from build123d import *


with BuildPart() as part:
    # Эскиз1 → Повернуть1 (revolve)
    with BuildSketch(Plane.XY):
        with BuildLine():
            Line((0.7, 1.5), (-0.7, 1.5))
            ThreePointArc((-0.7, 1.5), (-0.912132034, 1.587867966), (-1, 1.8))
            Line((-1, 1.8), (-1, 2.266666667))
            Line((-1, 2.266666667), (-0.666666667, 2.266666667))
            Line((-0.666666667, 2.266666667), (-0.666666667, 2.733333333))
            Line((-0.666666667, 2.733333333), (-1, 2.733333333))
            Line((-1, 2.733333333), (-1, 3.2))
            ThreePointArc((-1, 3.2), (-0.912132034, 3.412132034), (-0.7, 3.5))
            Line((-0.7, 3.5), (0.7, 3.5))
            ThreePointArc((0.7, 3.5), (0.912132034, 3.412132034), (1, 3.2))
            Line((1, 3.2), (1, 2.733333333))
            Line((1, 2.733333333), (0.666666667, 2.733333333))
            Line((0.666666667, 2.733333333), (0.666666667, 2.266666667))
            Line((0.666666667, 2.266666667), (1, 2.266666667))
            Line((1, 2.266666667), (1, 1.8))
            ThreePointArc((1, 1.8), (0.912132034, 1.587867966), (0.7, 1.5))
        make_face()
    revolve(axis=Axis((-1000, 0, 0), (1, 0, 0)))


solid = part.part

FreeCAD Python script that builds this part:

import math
import FreeCAD as App
import Part
import Sketcher
from FreeCAD import Vector

doc = App.newDocument("Part")
params = doc.addObject("Spreadsheet::Sheet", "Params")
for row, (alias, value) in enumerate([
    ("sketch1_radius", "0.3 mm"),
    ("sketch1_width", "1.4 mm"),
    ("revolution_angle", "360 deg"),
], start=1):
    params.set(f"A{row}", alias)
    params.set(f"B{row}", "=" + value)
    params.setAlias(f"B{row}", alias)

body = doc.addObject("PartDesign::Body", "Body")

sketch1 = body.newObject("Sketcher::SketchObject", "Sketch")
sketch1.AttachmentSupport = (doc.getObject("XY_Plane"), [""])
sketch1.MapMode = "FlatFace"
sketch1.addGeometry([
    Part.LineSegment(Vector(-0.7, 1.5, 0), Vector(0.7, 1.5, 0)),
    Part.ArcOfCircle(Part.Circle(Vector(0.7, 1.8, 0), Vector(0, 0, 1), 0.3), math.radians(-90), math.radians(0)),
    Part.LineSegment(Vector(1, 1.8, 0), Vector(1, 2.266667, 0)),
    Part.LineSegment(Vector(1, 2.266667, 0), Vector(0.666667, 2.266667, 0)),
    Part.LineSegment(Vector(0.666667, 2.266667, 0), Vector(0.666667, 2.733333, 0)),
    Part.LineSegment(Vector(0.666667, 2.733333, 0), Vector(1, 2.733333, 0)),
    Part.LineSegment(Vector(1, 2.733333, 0), Vector(1, 3.2, 0)),
    Part.ArcOfCircle(Part.Circle(Vector(0.7, 3.2, 0), Vector(0, 0, 1), 0.3), math.radians(0), math.radians(90)),
    Part.LineSegment(Vector(0.7, 3.5, 0), Vector(-0.7, 3.5, 0)),
    Part.ArcOfCircle(Part.Circle(Vector(-0.7, 3.2, 0), Vector(0, 0, 1), 0.3), math.radians(90), math.radians(180)),
    Part.LineSegment(Vector(-1, 3.2, 0), Vector(-1, 2.733333, 0)),
    Part.LineSegment(Vector(-1, 2.733333, 0), Vector(-0.666667, 2.733333, 0)),
    Part.LineSegment(Vector(-0.666667, 2.733333, 0), Vector(-0.666667, 2.266667, 0)),
    Part.LineSegment(Vector(-0.666667, 2.266667, 0), Vector(-1, 2.266667, 0)),
    Part.LineSegment(Vector(-1, 2.266667, 0), Vector(-1, 1.8, 0)),
    Part.ArcOfCircle(Part.Circle(Vector(-0.7, 1.8, 0), Vector(0, 0, 1), 0.3), math.radians(-180), math.radians(-90)),
], False)
sketch1.addConstraint([
    Sketcher.Constraint("Tangent", 0, 2, 1, 1),
    Sketcher.Constraint("Tangent", 1, 2, 2, 1),
    Sketcher.Constraint("Coincident", 2, 2, 3, 1),
    Sketcher.Constraint("Coincident", 3, 2, 4, 1),
    Sketcher.Constraint("Coincident", 4, 2, 5, 1),
    Sketcher.Constraint("Coincident", 5, 2, 6, 1),
    Sketcher.Constraint("Tangent", 6, 2, 7, 1),
    Sketcher.Constraint("Tangent", 7, 2, 8, 1),
    Sketcher.Constraint("Tangent", 8, 2, 9, 1),
    Sketcher.Constraint("Tangent", 9, 2, 10, 1),
    Sketcher.Constraint("Coincident", 10, 2, 11, 1),
    Sketcher.Constraint("Coincident", 11, 2, 12, 1),
    Sketcher.Constraint("Coincident", 12, 2, 13, 1),
    Sketcher.Constraint("Coincident", 13, 2, 14, 1),
    Sketcher.Constraint("Tangent", 14, 2, 15, 1),
    Sketcher.Constraint("Tangent", 15, 2, 0, 1),
    Sketcher.Constraint("Horizontal", 0),
    Sketcher.Constraint("Vertical", 2),
    Sketcher.Constraint("Horizontal", 3),
    Sketcher.Constraint("Vertical", 4),
    Sketcher.Constraint("Horizontal", 5),
    Sketcher.Constraint("Vertical", 6),
    Sketcher.Constraint("Horizontal", 8),
    Sketcher.Constraint("Vertical", 10),
    Sketcher.Constraint("Horizontal", 11),
    Sketcher.Constraint("Vertical", 12),
    Sketcher.Constraint("Horizontal", 13),
    Sketcher.Constraint("Vertical", 14),
    Sketcher.Constraint("Equal", 1, 7),
    Sketcher.Constraint("Equal", 7, 9),
    Sketcher.Constraint("Equal", 9, 15),
    Sketcher.Constraint("Symmetric", 5, 2, 10, 2, -2),
    Sketcher.Constraint("Symmetric", 3, 2, 12, 2, -2),
    Sketcher.Constraint("Vertical", 1, 3, 7, 3),
    Sketcher.Constraint("Vertical", 9, 3, 15, 3),
    Sketcher.Constraint("Equal", 2, 4),
    Sketcher.Constraint("Equal", 4, 6),
    Sketcher.Constraint("Radius", 1, 0.3),
    Sketcher.Constraint("DistanceX", 0, 1, 0, 2, 1.4),
    Sketcher.Constraint("DistanceY", -1, 1, 1, 3, 1.8),
    Sketcher.Constraint("DistanceY", -1, 1, 7, 3, 3.2),
    Sketcher.Constraint("DistanceX", 3, 2, 3, 1, 0.333333),
])
sketch1.setExpression("Constraints[37]", "Params.sketch1_radius")
sketch1.setExpression("Constraints[38]", "Params.sketch1_width")
revolution = body.newObject("PartDesign::Revolution", "Revolution")
revolution.Profile = sketch1
revolution.ReferenceAxis = (sketch1, ["H_Axis"])
revolution.setExpression("Angle", "Params.revolution_angle")

doc.recompute()
